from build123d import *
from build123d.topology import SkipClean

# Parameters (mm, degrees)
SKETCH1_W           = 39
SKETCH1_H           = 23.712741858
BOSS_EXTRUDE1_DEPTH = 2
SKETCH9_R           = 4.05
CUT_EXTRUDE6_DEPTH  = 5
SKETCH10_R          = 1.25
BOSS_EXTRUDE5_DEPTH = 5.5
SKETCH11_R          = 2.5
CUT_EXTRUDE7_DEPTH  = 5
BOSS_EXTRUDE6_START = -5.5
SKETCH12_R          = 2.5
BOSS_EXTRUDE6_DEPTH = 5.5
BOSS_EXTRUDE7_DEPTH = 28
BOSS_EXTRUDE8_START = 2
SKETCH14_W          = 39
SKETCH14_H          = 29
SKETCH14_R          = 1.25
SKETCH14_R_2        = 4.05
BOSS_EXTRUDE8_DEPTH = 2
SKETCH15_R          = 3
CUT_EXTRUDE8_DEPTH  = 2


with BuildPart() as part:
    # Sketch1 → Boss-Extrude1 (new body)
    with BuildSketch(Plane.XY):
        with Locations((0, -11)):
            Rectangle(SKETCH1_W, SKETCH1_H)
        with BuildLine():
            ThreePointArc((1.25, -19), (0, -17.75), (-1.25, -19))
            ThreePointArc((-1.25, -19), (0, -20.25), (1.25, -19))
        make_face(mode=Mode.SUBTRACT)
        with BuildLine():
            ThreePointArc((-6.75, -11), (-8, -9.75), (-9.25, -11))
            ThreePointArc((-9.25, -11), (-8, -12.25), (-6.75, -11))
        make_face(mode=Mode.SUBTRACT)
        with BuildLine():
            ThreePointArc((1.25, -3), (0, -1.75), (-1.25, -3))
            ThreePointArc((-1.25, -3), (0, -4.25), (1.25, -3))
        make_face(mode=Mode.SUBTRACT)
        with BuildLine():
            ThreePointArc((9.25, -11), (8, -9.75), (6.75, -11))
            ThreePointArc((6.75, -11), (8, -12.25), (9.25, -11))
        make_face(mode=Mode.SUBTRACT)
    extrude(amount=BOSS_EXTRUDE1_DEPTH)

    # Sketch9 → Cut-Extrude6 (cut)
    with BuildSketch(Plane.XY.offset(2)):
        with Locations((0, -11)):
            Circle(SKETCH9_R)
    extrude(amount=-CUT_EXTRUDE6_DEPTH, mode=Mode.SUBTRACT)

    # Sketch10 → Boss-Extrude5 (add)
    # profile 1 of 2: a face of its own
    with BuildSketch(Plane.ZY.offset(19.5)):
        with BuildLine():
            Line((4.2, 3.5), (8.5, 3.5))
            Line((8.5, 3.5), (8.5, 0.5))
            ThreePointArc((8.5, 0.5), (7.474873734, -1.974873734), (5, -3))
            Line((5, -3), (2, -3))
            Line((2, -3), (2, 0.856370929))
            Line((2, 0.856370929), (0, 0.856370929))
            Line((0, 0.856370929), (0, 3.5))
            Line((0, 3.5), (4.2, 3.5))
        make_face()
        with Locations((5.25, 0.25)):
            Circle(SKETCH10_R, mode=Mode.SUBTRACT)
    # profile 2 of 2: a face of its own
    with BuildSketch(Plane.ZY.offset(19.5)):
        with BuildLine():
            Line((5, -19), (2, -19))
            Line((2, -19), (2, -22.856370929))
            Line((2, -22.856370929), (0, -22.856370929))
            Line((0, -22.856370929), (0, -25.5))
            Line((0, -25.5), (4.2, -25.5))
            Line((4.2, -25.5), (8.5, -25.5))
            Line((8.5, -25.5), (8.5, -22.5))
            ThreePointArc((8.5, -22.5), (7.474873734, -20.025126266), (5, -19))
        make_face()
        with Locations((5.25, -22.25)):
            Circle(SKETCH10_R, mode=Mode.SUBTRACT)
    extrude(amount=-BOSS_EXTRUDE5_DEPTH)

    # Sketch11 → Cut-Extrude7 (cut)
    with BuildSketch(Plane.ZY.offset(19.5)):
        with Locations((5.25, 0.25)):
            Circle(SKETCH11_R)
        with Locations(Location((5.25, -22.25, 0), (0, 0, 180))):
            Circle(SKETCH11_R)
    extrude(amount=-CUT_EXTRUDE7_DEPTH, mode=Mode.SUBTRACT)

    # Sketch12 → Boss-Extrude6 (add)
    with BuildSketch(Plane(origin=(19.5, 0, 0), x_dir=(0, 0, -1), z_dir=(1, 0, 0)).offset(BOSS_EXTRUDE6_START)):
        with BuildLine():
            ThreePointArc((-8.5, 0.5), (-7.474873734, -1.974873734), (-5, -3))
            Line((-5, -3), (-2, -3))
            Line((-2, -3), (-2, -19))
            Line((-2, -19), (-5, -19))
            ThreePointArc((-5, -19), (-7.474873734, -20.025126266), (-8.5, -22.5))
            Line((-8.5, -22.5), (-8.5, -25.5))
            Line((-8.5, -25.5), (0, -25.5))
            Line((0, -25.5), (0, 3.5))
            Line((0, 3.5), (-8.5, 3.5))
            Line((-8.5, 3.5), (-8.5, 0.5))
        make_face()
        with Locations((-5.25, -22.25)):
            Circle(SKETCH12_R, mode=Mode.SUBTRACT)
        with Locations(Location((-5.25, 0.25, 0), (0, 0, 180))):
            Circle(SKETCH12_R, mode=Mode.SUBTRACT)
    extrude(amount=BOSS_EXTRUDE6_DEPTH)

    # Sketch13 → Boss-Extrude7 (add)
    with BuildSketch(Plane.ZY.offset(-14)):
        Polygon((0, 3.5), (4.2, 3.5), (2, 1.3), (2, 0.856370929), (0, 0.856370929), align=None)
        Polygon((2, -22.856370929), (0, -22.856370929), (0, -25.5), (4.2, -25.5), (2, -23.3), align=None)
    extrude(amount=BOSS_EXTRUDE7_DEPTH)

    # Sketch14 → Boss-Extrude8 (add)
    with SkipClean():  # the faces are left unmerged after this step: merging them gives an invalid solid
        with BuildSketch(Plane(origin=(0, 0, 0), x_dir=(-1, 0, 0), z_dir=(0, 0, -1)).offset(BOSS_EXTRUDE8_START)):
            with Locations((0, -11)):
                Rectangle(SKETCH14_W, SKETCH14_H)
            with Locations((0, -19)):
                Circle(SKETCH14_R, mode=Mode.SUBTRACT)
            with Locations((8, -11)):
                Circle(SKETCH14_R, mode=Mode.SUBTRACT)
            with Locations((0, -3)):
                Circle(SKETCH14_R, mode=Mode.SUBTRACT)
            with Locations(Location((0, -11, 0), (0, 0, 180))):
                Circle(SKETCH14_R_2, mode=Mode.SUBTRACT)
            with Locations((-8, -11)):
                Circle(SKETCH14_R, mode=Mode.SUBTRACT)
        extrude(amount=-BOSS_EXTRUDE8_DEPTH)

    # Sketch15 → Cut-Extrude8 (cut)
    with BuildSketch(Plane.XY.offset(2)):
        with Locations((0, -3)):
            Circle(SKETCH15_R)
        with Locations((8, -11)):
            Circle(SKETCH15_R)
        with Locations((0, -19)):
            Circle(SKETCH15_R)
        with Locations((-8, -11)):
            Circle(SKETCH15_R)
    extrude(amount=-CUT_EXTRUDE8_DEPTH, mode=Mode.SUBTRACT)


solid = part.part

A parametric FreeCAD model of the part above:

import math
import FreeCAD as App
import Part
import Sketcher
from FreeCAD import Vector
Q = App.Units.Quantity


def add_polygon(sketch, points):
    """Adds a closed chain of lines whose ends are joined by coincident constraints."""
    first, n = sketch.GeometryCount, len(points)
    for a, b in zip(points, points[1:] + points[:1]):
        sketch.addGeometry(Part.LineSegment(App.Vector(*a, 0), App.Vector(*b, 0)), False)
    for i in range(n):
        sketch.addConstraint(Sketcher.Constraint("Coincident", first + i, 2, first + (i + 1) % n, 1))

doc = App.newDocument("Part")
body = doc.addObject("PartDesign::Body", "Body")

sketch1 = body.newObject("Sketcher::SketchObject", "Sketch")
sketch1.AttachmentSupport = (doc.getObject("XY_Plane"), [""])
sketch1.MapMode = "FlatFace"
add_polygon(sketch1, [(-19.5, 0.9), (-19.5, -22.9), (19.5, -22.9), (19.5, 0.9)])
sketch1.addGeometry(Part.Circle(Vector(0, -19, 0), Vector(0, 0, 1), 1.2), False)
sketch1.addGeometry(Part.Circle(Vector(-8, -11, 0), Vector(0, 0, 1), 1.2), False)
sketch1.addGeometry(Part.Circle(Vector(8, -11, 0), Vector(0, 0, 1), 1.2), False)
sketch1.addGeometry(Part.Circle(Vector(0, -3, 0), Vector(0, 0, 1), 1.2), False)
sketch1.addConstraint([
    Sketcher.Constraint("Vertical", 0),
    Sketcher.Constraint("Horizontal", 1),
    Sketcher.Constraint("Vertical", 2),
    Sketcher.Constraint("Horizontal", 3),
    Sketcher.Constraint("Equal", 4, 5),
    Sketcher.Constraint("Equal", 5, 6),
    Sketcher.Constraint("Equal", 6, 7),
    Sketcher.Constraint("Symmetric", 5, 3, 6, 3, -2),
    Sketcher.Constraint("PointOnObject", 4, 3, -2),
    Sketcher.Constraint("PointOnObject", 7, 3, -2),
    Sketcher.Constraint("Diameter", 4, Q("2.5 mm")),
    Sketcher.Constraint("DistanceX", 1, 1, 1, 2, Q("39 mm")),
    Sketcher.Constraint("DistanceY", 4, 3, -1, 1, Q("19 mm")),
    Sketcher.Constraint("DistanceX", 5, 3, -1, 1, Q("8 mm")),
    Sketcher.Constraint("DistanceY", 5, 3, -1, 1, Q("11 mm")),
    Sketcher.Constraint("DistanceY", 7, 3, -1, 1, Q("3 mm")),
    Sketcher.Constraint("DistanceX", 0, 2, -1, 1, Q("19.5 mm")),
    Sketcher.Constraint("DistanceY", 0, 2, 0, 1, Q("23.712742 mm")),
    Sketcher.Constraint("DistanceY", 0, 2, -1, 1, Q("22.856371 mm")),
])
pad1 = body.newObject("PartDesign::Pad", "Pad")
pad1.Profile = sketch1
pad1.Length = 2

sketch2 = body.newObject("Sketcher::SketchObject", "Sketch001")
sketch2.AttachmentSupport = (doc.getObject("XY_Plane"), [""])
sketch2.MapMode = "FlatFace"
sketch2.AttachmentOffset = App.Placement(Vector(0, 0, 2), App.Rotation())
sketch2.addGeometry(Part.Circle(Vector(0, -11, 0), Vector(0, 0, 1), 4), False)
sketch2.addConstraint([
    Sketcher.Constraint("PointOnObject", 0, 3, -2),
    Sketcher.Constraint("Diameter", 0, Q("8.1 mm")),
    Sketcher.Constraint("DistanceY", 0, 3, -1, 1, Q("11 mm")),
])
pocket1 = body.newObject("PartDesign::Pocket", "Pocket")
pocket1.Profile = sketch2
pocket1.Length = 5

sketch3 = body.newObject("Sketcher::SketchObject", "Sketch002")
sketch3.AttachmentSupport = (doc.getObject("YZ_Plane"), [""])
sketch3.MapMode = "FlatFace"
sketch3.AttachmentOffset = App.Placement(Vector(0, 0, -19.5), App.Rotation())
sketch3.addGeometry([
    Part.LineSegment(Vector(0.5, 8.5, 0), Vector(3.5, 8.5, 0)),
    Part.LineSegment(Vector(3.5, 8.5, 0), Vector(3.5, 0, 0)),
    Part.LineSegment(Vector(3.5, 0, 0), Vector(0.9, 0, 0)),
    Part.LineSegment(Vector(0.9, 0, 0), Vector(0.9, 2, 0)),
    Part.LineSegment(Vector(0.9, 2, 0), Vector(-3, 2, 0)),
    Part.LineSegment(Vector(-3, 2, 0), Vector(-3, 5, 0)),
    Part.ArcOfCircle(Part.Circle(Vector(0.5, 5, 0), Vector(0, 0, 1), 3.5), math.radians(90), math.radians(180)),
    Part.Circle(Vector(0.2, 5.2, 0), Vector(0, 0, 1), 1.2),
    Part.LineSegment(Vector(-19, 5, 0), Vector(-19, 2, 0)),
    Part.LineSegment(Vector(-19, 2, 0), Vector(-22.9, 2, 0)),
    Part.LineSegment(Vector(-22.9, 2, 0), Vector(-22.9, 0, 0)),
    Part.LineSegment(Vector(-22.9, 0, 0), Vector(-25.5, 0, 0)),
    Part.LineSegment(Vector(-25.5, 0, 0), Vector(-25.5, 8.5, 0)),
    Part.LineSegment(Vector(-25.5, 8.5, 0), Vector(-22.5, 8.5, 0)),
    Part.ArcOfCircle(Part.Circle(Vector(-22.5, 5, 0), Vector(0, 0, 1), 3.5), math.radians(0), math.radians(90)),
    Part.Circle(Vector(-22.2, 5.2, 0), Vector(0, 0, 1), 1.2),
], False)
sketch3.addConstraint([
    Sketcher.Constraint("Coincident", 0, 2, 1, 1),
    Sketcher.Constraint("Coincident", 1, 2, 2, 1),
    Sketcher.Constraint("Coincident", 2, 2, 3, 1),
    Sketcher.Constraint("Coincident", 3, 2, 4, 1),
    Sketcher.Constraint("Coincident", 4, 2, 5, 1),
    Sketcher.Constraint("Tangent", 5, 2, 6, 2),
    Sketcher.Constraint("Tangent", 6, 1, 0, 1),
    Sketcher.Constraint("Coincident", 8, 2, 9, 1),
    Sketcher.Constraint("Coincident", 9, 2, 10, 1),
    Sketcher.Constraint("Coincident", 10, 2, 11, 1),
    Sketcher.Constraint("Coincident", 11, 2, 12, 1),
    Sketcher.Constraint("Coincident", 12, 2, 13, 1),
    Sketcher.Constraint("Tangent", 13, 2, 14, 2),
    Sketcher.Constraint("Tangent", 14, 1, 8, 1),
    Sketcher.Constraint("Horizontal", 0),
    Sketcher.Constraint("Vertical", 1),
    Sketcher.Constraint("Horizontal", 2),
    Sketcher.Constraint("Vertical", 3),
    Sketcher.Constraint("Horizontal", 4),
    Sketcher.Constraint("Vertical", 5),
    Sketcher.Constraint("Vertical", 8),
    Sketcher.Constraint("Horizontal", 9),
    Sketcher.Constraint("Vertical", 10),
    Sketcher.Constraint("Horizontal", 11),
    Sketcher.Constraint("Vertical", 12),
    Sketcher.Constraint("Horizontal", 13),
    Sketcher.Constraint("Equal", 6, 14),
    Sketcher.Constraint("Equal", 7, 15),
    Sketcher.Constraint("PointOnObject", 1, 2, -1),
    Sketcher.Constraint("PointOnObject", 10, 2, -1),
    Sketcher.Constraint("Horizontal", 6, 3, 14, 3),
    Sketcher.Constraint("Horizontal", 7, 3, 15, 3),
    Sketcher.Constraint("Horizontal", 4, 2, 8, 2),
    Sketcher.Constraint("Equal", 4, 9),
    Sketcher.Constraint("Equal", 2, 11),
    Sketcher.Constraint("Equal", 13, 5),
    Sketcher.Constraint("Diameter", 7, Q("2.5 mm")),
    Sketcher.Constraint("Radius", 6, Q("3.5 mm")),
    Sketcher.Constraint("DistanceX", 0, 1, 0, 2, Q("3 mm")),
    Sketcher.Constraint("DistanceY", 3, 1, 3, 2, Q("2 mm")),
    Sketcher.Constraint("DistanceX", 4, 2, -1, 1, Q("3 mm")),
    Sketcher.Constraint("DistanceX", 8, 2, -1, 1, Q("19 mm")),
    Sketcher.Constraint("DistanceX", 15, 3, 7, 3, Q("22.5 mm")),
    Sketcher.Constraint("DistanceX", -1, 1, 7, 3, Q("0.25 mm")),
    Sketcher.Constraint("DistanceY", -1, 1, 7, 3, Q("5.25 mm")),
    Sketcher.Constraint("DistanceX", 2, 2, 2, 1, Q("2.643629 mm")),
])
pad2 = body.newObject("PartDesign::Pad", "Pad001")
pad2.Profile = sketch3
pad2.Length = 5.5

sketch4 = body.newObject("Sketcher::SketchObject", "Sketch003")
sketch4.AttachmentSupport = (doc.getObject("YZ_Plane"), [""])
sketch4.MapMode = "FlatFace"
sketch4.AttachmentOffset = App.Placement(Vector(0, 0, -19.5), App.Rotation())
sketch4.addGeometry([
    Part.Circle(Vector(0.2, 5.2, 0), Vector(0, 0, 1), 2.5),
    Part.Circle(Vector(-22.2, 5.2, 0), Vector(0, 0, 1), 2.5),
], False)
sketch4.addConstraint([
    Sketcher.Constraint("Equal", 0, 1),
    Sketcher.Constraint("Horizontal", 0, 3, 1, 3),
    Sketcher.Constraint("Diameter", 0, Q("5 mm")),
    Sketcher.Constraint("DistanceX", 1, 3, 0, 3, Q("22.5 mm")),
    Sketcher.Constraint("DistanceX", -1, 1, 0, 3, Q("0.25 mm")),
    Sketcher.Constraint("DistanceY", -1, 1, 0, 3, Q("5.25 mm")),
])
pocket2 = body.newObject("PartDesign::Pocket", "Pocket001")
pocket2.Profile = sketch4
pocket2.Length = 5
pocket2.Reversed = True

sketch5 = body.newObject("Sketcher::SketchObject", "Sketch004")
sketch5.AttachmentSupport = (doc.getObject("YZ_Plane"), [""])
sketch5.MapMode = "FlatFace"
sketch5.AttachmentOffset = App.Placement(Vector(0, 0, 14), App.Rotation())
sketch5.addGeometry([
    Part.ArcOfCircle(Part.Circle(Vector(0.5, 5, 0), Vector(0, 0, 1), 3.5), math.radians(90), math.radians(180)),
    Part.LineSegment(Vector(-3, 5, 0), Vector(-3, 2, 0)),
    Part.LineSegment(Vector(-3, 2, 0), Vector(-19, 2, 0)),
    Part.LineSegment(Vector(-19, 2, 0), Vector(-19, 5, 0)),
    Part.ArcOfCircle(Part.Circle(Vector(-22.5, 5, 0), Vector(0, 0, 1), 3.5), math.radians(0), math.radians(90)),
    Part.LineSegment(Vector(-22.5, 8.5, 0), Vector(-25.5, 8.5, 0)),
    Part.LineSegment(Vector(-25.5, 8.5, 0), Vector(-25.5, 0, 0)),
    Part.LineSegment(Vector(-25.5, 0, 0), Vector(3.5, 0, 0)),
    Part.LineSegment(Vector(3.5, 0, 0), Vector(3.5, 8.5, 0)),
    Part.LineSegment(Vector(3.5, 8.5, 0), Vector(0.5, 8.5, 0)),
    Part.Circle(Vector(-22.2, 5.2, 0), Vector(0, 0, 1), 2.5),
    Part.Circle(Vector(0.2, 5.2, 0), Vector(0, 0, 1), 2.5),
], False)
sketch5.addConstraint([
    Sketcher.Constraint("Tangent", 0, 2, 1, 1),
    Sketcher.Constraint("Coincident", 1, 2, 2, 1),
    Sketcher.Constraint("Coincident", 2, 2, 3, 1),
    Sketcher.Constraint("Tangent", 3, 2, 4, 1),
    Sketcher.Constraint("Tangent", 4, 2, 5, 1),
    Sketcher.Constraint("Coincident", 5, 2, 6, 1),
    Sketcher.Constraint("Coincident", 6, 2, 7, 1),
    Sketcher.Constraint("Coincident", 7, 2, 8, 1),
    Sketcher.Constraint("Coincident", 8, 2, 9, 1),
    Sketcher.Constraint("Tangent", 9, 2, 0, 1),
    Sketcher.Constraint("Vertical", 1),
    Sketcher.Constraint("Horizontal", 2),
    Sketcher.Constraint("Vertical", 3),
    Sketcher.Constraint("Horizontal", 5),
    Sketcher.Constraint("Vertical", 6),
    Sketcher.Constraint("Horizontal", 7),
    Sketcher.Constraint("Vertical", 8),
    Sketcher.Constraint("Horizontal", 9),
    Sketcher.Constraint("Equal", 0, 4),
    Sketcher.Constraint("Equal", 10, 11),
    Sketcher.Constraint("PointOnObject", 6, 2, -1),
    Sketcher.Constraint("Horizontal", 0, 3, 4, 3),
    Sketcher.Constraint("Horizontal", 10, 3, 11, 3),
    Sketcher.Constraint("Equal", 5, 9),
    Sketcher.Constraint("Equal", 9, 1),
    Sketcher.Constraint("Diameter", 10, Q("5 mm")),
    Sketcher.Constraint("Radius", 0, Q("3.5 mm")),
    Sketcher.Constraint("DistanceX", 2, 2, 2, 1, Q("16 mm")),
    Sketcher.Constraint("DistanceX", 5, 2, 5, 1, Q("3 mm")),
    Sketcher.Constraint("DistanceY", 6, 2, 6, 1, Q("8.5 mm")),
    Sketcher.Constraint("DistanceX", 0, 2, -1, 1, Q("3 mm")),
    Sketcher.Constraint("DistanceX", 10, 3, 11, 3, Q("22.5 mm")),
    Sketcher.Constraint("DistanceX", 10, 3, -1, 1, Q("22.25 mm")),
    Sketcher.Constraint("DistanceY", -1, 1, 10, 3, Q("5.25 mm")),
])
pad3 = body.newObject("PartDesign::Pad", "Pad002")
pad3.Profile = sketch5
pad3.Length = 5.5

sketch6 = body.newObject("Sketcher::SketchObject", "Sketch005")
sketch6.AttachmentSupport = (doc.getObject("YZ_Plane"), [""])
sketch6.MapMode = "FlatFace"
sketch6.AttachmentOffset = App.Placement(Vector(0, 0, 14), App.Rotation())
add_polygon(sketch6, [(3.5, 4.2), (3.5, 0), (0.86, 0), (0.86, 2), (1.3, 2)])
add_polygon(sketch6, [(-22.86, 2), (-22.86, 0), (-25.5, 0), (-25.5, 4.2), (-23.3, 2)])
sketch6.addConstraint([
    Sketcher.Constraint("Vertical", 0),
    Sketcher.Constraint("Horizontal", 1),
    Sketcher.Constraint("Vertical", 2),
    Sketcher.Constraint("Horizontal", 3),
    Sketcher.Constraint("Vertical", 5),
    Sketcher.Constraint("Horizontal", 6),
    Sketcher.Constraint("Vertical", 7),
    Sketcher.Constraint("Horizontal", 9),
    Sketcher.Constraint("PointOnObject", 0, 2, -1),
    Sketcher.Constraint("PointOnObject", 5, 2, -1),
    Sketcher.Constraint("Perpendicular", 4, 8),
    Sketcher.Constraint("Horizontal", 4, 2, 7, 2),
    Sketcher.Constraint("Horizontal", 3, 2, 8, 2),
    Sketcher.Constraint("Equal", 1, 6),
    Sketcher.Constraint("Equal", 3, 9),
    Sketcher.Constraint("DistanceY", 2, 1, 2, 2, Q("2 mm")),
    Sketcher.Constraint("DistanceY", 0, 2, 0, 1, Q("4.2 mm")),
    Sketcher.Constraint("DistanceX", 6, 2, 0, 2, Q("29 mm")),
    Sketcher.Constraint("DistanceX", -1, 1, 0, 2, Q("3.5 mm")),
    Sketcher.Constraint("DistanceX", 1, 2, 1, 1, Q("2.643629 mm")),
])
pad4 = body.newObject("PartDesign::Pad", "Pad003")
pad4.Profile = sketch6
pad4.Length = 28
pad4.Reversed = True

sketch7 = body.newObject("Sketcher::SketchObject", "Sketch006")
sketch7.AttachmentSupport = (doc.getObject("XY_Plane"), [""])
sketch7.MapMode = "FlatFace"
sketch7.AttachmentOffset = App.Placement(Vector(0, 0, -2), App.Rotation())
add_polygon(sketch7, [(19.5, 3.5), (19.5, -25.5), (-19.5, -25.5), (-19.5, 3.5)])
sketch7.addGeometry(Part.Circle(Vector(0, -19, 0), Vector(0, 0, 1), 1.2), False)
sketch7.addGeometry(Part.Circle(Vector(8, -11, 0), Vector(0, 0, 1), 1.2), False)
sketch7.addGeometry(Part.Circle(Vector(0, -11, 0), Vector(0, 0, 1), 4), False)
sketch7.addGeometry(Part.Circle(Vector(-8, -11, 0), Vector(0, 0, 1), 1.2), False)
sketch7.addGeometry(Part.Circle(Vector(0, -3, 0), Vector(0, 0, 1), 1.2), False)
sketch7.addConstraint([
    Sketcher.Constraint("Vertical", 0),
    Sketcher.Constraint("Horizontal", 1),
    Sketcher.Constraint("Vertical", 2),
    Sketcher.Constraint("Horizontal", 3),
    Sketcher.Constraint("Equal", 4, 5),
    Sketcher.Constraint("Equal", 5, 7),
    Sketcher.Constraint("Equal", 7, 8),
    Sketcher.Constraint("Symmetric", 5, 3, 7, 3, -2),
    Sketcher.Constraint("PointOnObject", 4, 3, -2),
    Sketcher.Constraint("PointOnObject", 6, 3, -2),
    Sketcher.Constraint("PointOnObject", 8, 3, -2),
    Sketcher.Constraint("Horizontal", 5, 3, 6, 3),
    Sketcher.Constraint("Diameter", 4, Q("2.5 mm")),
    Sketcher.Constraint("Diameter", 6, Q("8.1 mm")),
    Sketcher.Constraint("DistanceX", 1, 2, 1, 1, Q("39 mm")),
    Sketcher.Constraint("DistanceY", 0, 2, 0, 1, Q("29 mm")),
    Sketcher.Constraint("DistanceY", 4, 3, -1, 1, Q("19 mm")),
    Sketcher.Constraint("DistanceX", -1, 1, 5, 3, Q("8 mm")),
    Sketcher.Constraint("DistanceY", 5, 3, -1, 1, Q("11 mm")),
    Sketcher.Constraint("DistanceY", 8, 3, -1, 1, Q("3 mm")),
    Sketcher.Constraint("DistanceX", -1, 1, 0, 2, Q("19.5 mm")),
    Sketcher.Constraint("DistanceY", 0, 2, -1, 1, Q("25.5 mm")),
])
pad5 = body.newObject("PartDesign::Pad", "Pad004")
pad5.Profile = sketch7
pad5.Length = 2

sketch8 = body.newObject("Sketcher::SketchObject", "Sketch007")
sketch8.AttachmentSupport = (doc.getObject("XY_Plane"), [""])
sketch8.MapMode = "FlatFace"
sketch8.AttachmentOffset = App.Placement(Vector(0, 0, 2), App.Rotation())
sketch8.addGeometry([
    Part.Circle(Vector(0, -3, 0), Vector(0, 0, 1), 3),
    Part.Circle(Vector(8, -11, 0), Vector(0, 0, 1), 3),
    Part.Circle(Vector(0, -19, 0), Vector(0, 0, 1), 3),
    Part.Circle(Vector(-8, -11, 0), Vector(0, 0, 1), 3),
], False)
sketch8.addConstraint([
    Sketcher.Constraint("Equal", 0, 1),
    Sketcher.Constraint("Equal", 1, 2),
    Sketcher.Constraint("Equal", 2, 3),
    Sketcher.Constraint("Symmetric", 1, 3, 3, 3, -2),
    Sketcher.Constraint("PointOnObject", 0, 3, -2),
    Sketcher.Constraint("PointOnObject", 2, 3, -2),
    Sketcher.Constraint("Diameter", 0, Q("6 mm")),
    Sketcher.Constraint("DistanceY", 0, 3, -1, 1, Q("3 mm")),
    Sketcher.Constraint("DistanceX", -1, 1, 1, 3, Q("8 mm")),
    Sketcher.Constraint("DistanceY", 1, 3, -1, 1, Q("11 mm")),
    Sketcher.Constraint("DistanceY", 2, 3, -1, 1, Q("19 mm")),
])
pocket3 = body.newObject("PartDesign::Pocket", "Pocket002")
pocket3.Profile = sketch8
pocket3.Length = 2

doc.recompute()
